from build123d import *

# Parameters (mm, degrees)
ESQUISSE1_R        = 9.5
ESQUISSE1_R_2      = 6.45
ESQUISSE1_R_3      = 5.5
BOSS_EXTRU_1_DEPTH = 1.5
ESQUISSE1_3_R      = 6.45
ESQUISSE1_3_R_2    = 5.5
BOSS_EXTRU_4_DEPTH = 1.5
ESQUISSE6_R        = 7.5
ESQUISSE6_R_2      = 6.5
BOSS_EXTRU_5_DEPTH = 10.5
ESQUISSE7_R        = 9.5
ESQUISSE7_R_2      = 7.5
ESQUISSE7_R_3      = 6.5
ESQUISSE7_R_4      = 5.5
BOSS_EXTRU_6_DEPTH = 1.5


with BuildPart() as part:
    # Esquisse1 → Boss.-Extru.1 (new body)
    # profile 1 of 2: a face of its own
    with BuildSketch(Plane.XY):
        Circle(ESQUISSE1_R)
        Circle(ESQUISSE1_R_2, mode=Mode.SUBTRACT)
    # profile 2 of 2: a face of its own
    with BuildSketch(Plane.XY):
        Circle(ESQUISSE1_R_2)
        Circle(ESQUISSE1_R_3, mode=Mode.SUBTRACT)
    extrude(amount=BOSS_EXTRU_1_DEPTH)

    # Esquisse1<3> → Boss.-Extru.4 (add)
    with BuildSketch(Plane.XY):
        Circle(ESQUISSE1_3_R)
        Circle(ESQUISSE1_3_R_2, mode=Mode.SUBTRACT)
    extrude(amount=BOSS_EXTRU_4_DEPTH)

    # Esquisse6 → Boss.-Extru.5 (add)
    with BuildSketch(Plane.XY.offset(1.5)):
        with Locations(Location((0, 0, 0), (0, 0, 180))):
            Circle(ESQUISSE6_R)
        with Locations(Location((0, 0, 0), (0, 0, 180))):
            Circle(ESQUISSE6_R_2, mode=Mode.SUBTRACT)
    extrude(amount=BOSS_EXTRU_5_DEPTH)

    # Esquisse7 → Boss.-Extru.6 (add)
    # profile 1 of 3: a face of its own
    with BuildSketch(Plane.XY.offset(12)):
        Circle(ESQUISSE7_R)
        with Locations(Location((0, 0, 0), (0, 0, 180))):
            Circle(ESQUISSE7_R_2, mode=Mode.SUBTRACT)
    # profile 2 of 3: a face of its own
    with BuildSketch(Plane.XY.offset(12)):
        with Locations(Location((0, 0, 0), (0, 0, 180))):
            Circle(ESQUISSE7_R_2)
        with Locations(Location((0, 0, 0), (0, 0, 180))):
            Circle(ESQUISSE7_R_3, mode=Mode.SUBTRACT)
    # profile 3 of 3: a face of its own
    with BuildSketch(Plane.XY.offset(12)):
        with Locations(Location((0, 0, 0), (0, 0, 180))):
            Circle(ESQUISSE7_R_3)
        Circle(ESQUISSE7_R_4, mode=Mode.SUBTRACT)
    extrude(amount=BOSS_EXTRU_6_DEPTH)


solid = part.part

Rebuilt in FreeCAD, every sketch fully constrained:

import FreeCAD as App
import Part
import Sketcher
Q = App.Units.Quantity

doc = App.newDocument("Part")
body = doc.addObject("PartDesign::Body", "Body")

sketch1 = doc.addObject("Sketcher::SketchObject", "Sketch")
body.addObject(sketch1)
sketch1.AttachmentSupport = (doc.XY_Plane, [""])
sketch1.MapMode = "FlatFace"
sketch1.addGeometry(Part.Circle(App.Vector(0, 0, 0), App.Vector(0, 0, 1), 10), False)
sketch1.addGeometry(Part.Circle(App.Vector(0, 0, 0), App.Vector(0, 0, 1), 6), False)
sketch1.addConstraint(Sketcher.Constraint("Coincident", 0, 3, -1, 1))
sketch1.addConstraint(Sketcher.Constraint("Coincident", 1, 3, -1, 1))
sketch1.addConstraint(Sketcher.Constraint("Diameter", 0, Q("19 mm")))
sketch1.addConstraint(Sketcher.Constraint("Diameter", 1, Q("11 mm")))
pad1 = doc.addObject("PartDesign::Pad", "Pad")
body.addObject(pad1)
pad1.Profile = sketch1
pad1.Length = 1.5

sketch2 = doc.addObject("Sketcher::SketchObject", "Sketch001")
body.addObject(sketch2)
sketch2.AttachmentSupport = (doc.XY_Plane, [""])
sketch2.MapMode = "FlatFace"
sketch2.addGeometry(Part.Circle(App.Vector(0, 0, 0), App.Vector(0, 0, 1), 6), False)
sketch2.addGeometry(Part.Circle(App.Vector(0, 0, 0), App.Vector(0, 0, 1), 6), False)
sketch2.addConstraint(Sketcher.Constraint("Coincident", 0, 3, -1, 1))
sketch2.addConstraint(Sketcher.Constraint("Coincident", 1, 3, -1, 1))
sketch2.addConstraint(Sketcher.Constraint("Diameter", 1, Q("11 mm")))
sketch2.addConstraint(Sketcher.Constraint("Diameter", 0, Q("12.9 mm")))
pad2 = doc.addObject("PartDesign::Pad", "Pad001")
body.addObject(pad2)
pad2.Profile = sketch2
pad2.Length = 1.5

sketch3 = doc.addObject("Sketcher::SketchObject", "Sketch002")
body.addObject(sketch3)
sketch3.AttachmentSupport = (doc.XY_Plane, [""])
sketch3.MapMode = "FlatFace"
sketch3.AttachmentOffset = App.Placement(App.Vector(0, 0, 1.5), App.Rotation())
sketch3.addGeometry(Part.Circle(App.Vector(0, 0, 0), App.Vector(0, 0, 1), 8), False)
sketch3.addGeometry(Part.Circle(App.Vector(0, 0, 0), App.Vector(0, 0, 1), 6), False)
sketch3.addConstraint(Sketcher.Constraint("Coincident", 0, 3, -1, 1))
sketch3.addConstraint(Sketcher.Constraint("Coincident", 1, 3, -1, 1))
sketch3.addConstraint(Sketcher.Constraint("Diameter", 0, Q("15 mm")))
sketch3.addConstraint(Sketcher.Constraint("Diameter", 1, Q("13 mm")))
pad3 = doc.addObject("PartDesign::Pad", "Pad002")
body.addObject(pad3)
pad3.Profile = sketch3
pad3.Length = 10.5

sketch4 = doc.addObject("Sketcher::SketchObject", "Sketch003")
body.addObject(sketch4)
sketch4.AttachmentSupport = (doc.XY_Plane, [""])
sketch4.MapMode = "FlatFace"
sketch4.AttachmentOffset = App.Placement(App.Vector(0, 0, 12), App.Rotation())
sketch4.addGeometry(Part.Circle(App.Vector(0, 0, 0), App.Vector(0, 0, 1), 10), False)
sketch4.addGeometry(Part.Circle(App.Vector(0, 0, 0), App.Vector(0, 0, 1), 6), False)
sketch4.addConstraint(Sketcher.Constraint("Coincident", 0, 3, -1, 1))
sketch4.addConstraint(Sketcher.Constraint("Coincident", 1, 3, -1, 1))
sketch4.addConstraint(Sketcher.Constraint("Diameter", 0, Q("19 mm")))
sketch4.addConstraint(Sketcher.Constraint("Diameter", 1, Q("11 mm")))
pad4 = doc.addObject("PartDesign::Pad", "Pad003")
body.addObject(pad4)
pad4.Profile = sketch4
pad4.Length = 1.5

doc.recompute()
